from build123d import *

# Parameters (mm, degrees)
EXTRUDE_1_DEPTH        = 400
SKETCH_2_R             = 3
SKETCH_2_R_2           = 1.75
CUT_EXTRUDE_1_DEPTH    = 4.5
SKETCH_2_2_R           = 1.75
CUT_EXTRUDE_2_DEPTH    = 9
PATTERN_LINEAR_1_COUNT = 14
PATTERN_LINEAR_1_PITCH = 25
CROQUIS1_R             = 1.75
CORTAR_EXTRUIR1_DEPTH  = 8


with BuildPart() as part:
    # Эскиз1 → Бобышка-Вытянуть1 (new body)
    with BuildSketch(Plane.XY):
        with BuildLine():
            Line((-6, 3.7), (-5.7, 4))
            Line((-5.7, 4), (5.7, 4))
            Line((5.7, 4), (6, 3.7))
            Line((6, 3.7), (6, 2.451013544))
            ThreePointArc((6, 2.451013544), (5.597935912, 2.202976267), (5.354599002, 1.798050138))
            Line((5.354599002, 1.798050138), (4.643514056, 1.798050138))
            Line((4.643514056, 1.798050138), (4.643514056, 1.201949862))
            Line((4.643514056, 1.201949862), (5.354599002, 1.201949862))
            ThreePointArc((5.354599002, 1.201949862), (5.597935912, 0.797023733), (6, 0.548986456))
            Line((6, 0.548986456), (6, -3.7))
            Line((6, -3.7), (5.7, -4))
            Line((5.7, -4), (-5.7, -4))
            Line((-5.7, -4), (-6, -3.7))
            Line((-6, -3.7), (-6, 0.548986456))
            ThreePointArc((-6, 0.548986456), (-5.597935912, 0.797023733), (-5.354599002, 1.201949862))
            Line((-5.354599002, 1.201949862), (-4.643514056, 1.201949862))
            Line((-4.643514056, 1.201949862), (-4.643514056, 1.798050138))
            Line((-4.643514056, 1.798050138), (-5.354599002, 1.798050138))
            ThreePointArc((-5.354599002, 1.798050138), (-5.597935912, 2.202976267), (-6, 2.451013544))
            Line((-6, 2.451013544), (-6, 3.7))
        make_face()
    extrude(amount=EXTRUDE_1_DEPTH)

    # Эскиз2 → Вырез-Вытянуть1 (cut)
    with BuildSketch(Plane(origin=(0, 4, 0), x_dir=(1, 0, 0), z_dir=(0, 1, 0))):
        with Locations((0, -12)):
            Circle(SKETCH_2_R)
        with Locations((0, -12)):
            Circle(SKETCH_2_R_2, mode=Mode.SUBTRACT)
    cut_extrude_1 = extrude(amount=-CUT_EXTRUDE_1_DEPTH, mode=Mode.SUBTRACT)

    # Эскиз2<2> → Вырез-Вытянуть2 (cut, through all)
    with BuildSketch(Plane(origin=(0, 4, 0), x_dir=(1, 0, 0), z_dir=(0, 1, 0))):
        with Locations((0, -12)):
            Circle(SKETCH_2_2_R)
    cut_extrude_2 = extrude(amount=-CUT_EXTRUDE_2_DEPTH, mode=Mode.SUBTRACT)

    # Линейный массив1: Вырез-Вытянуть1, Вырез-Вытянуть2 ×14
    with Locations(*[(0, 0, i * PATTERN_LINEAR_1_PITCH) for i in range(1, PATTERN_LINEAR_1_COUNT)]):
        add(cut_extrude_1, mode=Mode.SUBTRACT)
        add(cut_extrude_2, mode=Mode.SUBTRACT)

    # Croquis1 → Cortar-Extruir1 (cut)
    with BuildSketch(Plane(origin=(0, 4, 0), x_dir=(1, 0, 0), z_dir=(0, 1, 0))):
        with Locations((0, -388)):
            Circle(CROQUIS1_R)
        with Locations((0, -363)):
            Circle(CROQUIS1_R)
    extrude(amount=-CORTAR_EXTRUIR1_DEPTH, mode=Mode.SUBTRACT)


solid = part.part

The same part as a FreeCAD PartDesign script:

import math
import FreeCAD as App
import Part
import Sketcher
from FreeCAD import Vector
Q = App.Units.Quantity

doc = App.newDocument("Part")
body = doc.addObject("PartDesign::Body", "Body")

# Sketch on XY plane
sketch1 = doc.addObject("Sketcher::SketchObject", "Sketch")
body.addObject(sketch1)
sketch1.AttachmentSupport = (doc.XY_Plane, [""])
sketch1.MapMode = "FlatFace"
sketch1.addGeometry(Part.LineSegment(Vector(-5.7, 4, 0), Vector(-6, 3.7, 0)), False)
sketch1.addGeometry(Part.LineSegment(Vector(-6, 3.7, 0), Vector(-6, 2.45, 0)), False)
sketch1.addGeometry(Part.ArcOfCircle(Part.Circle(Vector(-6.31, 1.5, 0), Vector(0, 0, 1), 1), math.radians(17), math.radians(72)), False)
sketch1.addGeometry(Part.LineSegment(Vector(-5.35, 1.8, 0), Vector(-4.64, 1.8, 0)), False)
sketch1.addGeometry(Part.LineSegment(Vector(-4.64, 1.8, 0), Vector(-4.64, 1.2, 0)), False)
sketch1.addGeometry(Part.LineSegment(Vector(-4.64, 1.2, 0), Vector(-5.35, 1.2, 0)), False)
sketch1.addGeometry(Part.ArcOfCircle(Part.Circle(Vector(-6.31, 1.5, 0), Vector(0, 0, 1), 1), math.radians(-72), math.radians(-17)), False)
sketch1.addGeometry(Part.LineSegment(Vector(-6, 0.55, 0), Vector(-6, -3.7, 0)), False)
sketch1.addGeometry(Part.LineSegment(Vector(-6, -3.7, 0), Vector(-5.7, -4, 0)), False)
sketch1.addGeometry(Part.LineSegment(Vector(-5.7, -4, 0), Vector(5.7, -4, 0)), False)
sketch1.addGeometry(Part.LineSegment(Vector(5.7, -4, 0), Vector(6, -3.7, 0)), False)
sketch1.addGeometry(Part.LineSegment(Vector(6, -3.7, 0), Vector(6, 0.55, 0)), False)
sketch1.addGeometry(Part.ArcOfCircle(Part.Circle(Vector(6.31, 1.5, 0), Vector(0, 0, 1), 1), math.radians(-163), math.radians(-108)), False)
sketch1.addGeometry(Part.LineSegment(Vector(5.35, 1.2, 0), Vector(4.64, 1.2, 0)), False)
sketch1.addGeometry(Part.LineSegment(Vector(4.64, 1.2, 0), Vector(4.64, 1.8, 0)), False)
sketch1.addGeometry(Part.LineSegment(Vector(4.64, 1.8, 0), Vector(5.35, 1.8, 0)), False)
sketch1.addGeometry(Part.ArcOfCircle(Part.Circle(Vector(6.31, 1.5, 0), Vector(0, 0, 1), 1), math.radians(108), math.radians(163)), False)
sketch1.addGeometry(Part.LineSegment(Vector(6, 2.45, 0), Vector(6, 3.7, 0)), False)
sketch1.addGeometry(Part.LineSegment(Vector(6, 3.7, 0), Vector(5.7, 4, 0)), False)
sketch1.addGeometry(Part.LineSegment(Vector(5.7, 4, 0), Vector(-5.7, 4, 0)), False)
sketch1.addConstraint(Sketcher.Constraint("Coincident", 0, 2, 1, 1))
sketch1.addConstraint(Sketcher.Constraint("Coincident", 1, 2, 2, 2))
sketch1.addConstraint(Sketcher.Constraint("Coincident", 2, 1, 3, 1))
sketch1.addConstraint(Sketcher.Constraint("Coincident", 3, 2, 4, 1))
sketch1.addConstraint(Sketcher.Constraint("Coincident", 4, 2, 5, 1))
sketch1.addConstraint(Sketcher.Constraint("Coincident", 5, 2, 6, 2))
sketch1.addConstraint(Sketcher.Constraint("Coincident", 6, 1, 7, 1))
sketch1.addConstraint(Sketcher.Constraint("Coincident", 7, 2, 8, 1))
sketch1.addConstraint(Sketcher.Constraint("Coincident", 8, 2, 9, 1))
sketch1.addConstraint(Sketcher.Constraint("Coincident", 9, 2, 10, 1))
sketch1.addConstraint(Sketcher.Constraint("Coincident", 10, 2, 11, 1))
sketch1.addConstraint(Sketcher.Constraint("Coincident", 11, 2, 12, 2))
sketch1.addConstraint(Sketcher.Constraint("Coincident", 12, 1, 13, 1))
sketch1.addConstraint(Sketcher.Constraint("Coincident", 13, 2, 14, 1))
sketch1.addConstraint(Sketcher.Constraint("Coincident", 14, 2, 15, 1))
sketch1.addConstraint(Sketcher.Constraint("Coincident", 15, 2, 16, 2))
sketch1.addConstraint(Sketcher.Constraint("Coincident", 16, 1, 17, 1))
sketch1.addConstraint(Sketcher.Constraint("Coincident", 17, 2, 18, 1))
sketch1.addConstraint(Sketcher.Constraint("Coincident", 18, 2, 19, 1))
sketch1.addConstraint(Sketcher.Constraint("Coincident", 19, 2, 0, 1))
sketch1.addConstraint(Sketcher.Constraint("Vertical", 1))
sketch1.addConstraint(Sketcher.Constraint("Horizontal", 3))
sketch1.addConstraint(Sketcher.Constraint("Vertical", 4))
sketch1.addConstraint(Sketcher.Constraint("Horizontal", 5))
sketch1.addConstraint(Sketcher.Constraint("Vertical", 7))
sketch1.addConstraint(Sketcher.Constraint("Horizontal", 9))
sketch1.addConstraint(Sketcher.Constraint("Vertical", 11))
sketch1.addConstraint(Sketcher.Constraint("Horizontal", 13))
sketch1.addConstraint(Sketcher.Constraint("Vertical", 14))
sketch1.addConstraint(Sketcher.Constraint("Horizontal", 15))
sketch1.addConstraint(Sketcher.Constraint("Vertical", 17))
sketch1.addConstraint(Sketcher.Constraint("Horizontal", 19))
sketch1.addConstraint(Sketcher.Constraint("Coincident", 6, 3, 2, 3))
sketch1.addConstraint(Sketcher.Constraint("Coincident", 16, 3, 12, 3))
sketch1.addConstraint(Sketcher.Constraint("Equal", 2, 6))
sketch1.addConstraint(Sketcher.Constraint("Equal", 6, 12))
sketch1.addConstraint(Sketcher.Constraint("Equal", 12, 16))
sketch1.addConstraint(Sketcher.Constraint("Symmetric", 0, 2, 10, 2, -1, 1))
sketch1.addConstraint(Sketcher.Constraint("Symmetric", 7, 2, 17, 2, -1, 1))
sketch1.addConstraint(Sketcher.Constraint("Symmetric", 8, 2, 18, 2, -1, 1))
sketch1.addConstraint(Sketcher.Constraint("Symmetric", 2, 3, 12, 3, -2))
sketch1.addConstraint(Sketcher.Constraint("Symmetric", 7, 2, 10, 2, -2))
sketch1.addConstraint(Sketcher.Constraint("Symmetric", 4, 2, 13, 2, -2))
sketch1.addConstraint(Sketcher.Constraint("Perpendicular", 0, 8))
sketch1.addConstraint(Sketcher.Constraint("Perpendicular", 8, 10))
sketch1.addConstraint(Sketcher.Constraint("Horizontal", 3, 2, 14, 2))
sketch1.addConstraint(Sketcher.Constraint("Vertical", 2, 1, 5, 2))
sketch1.addConstraint(Sketcher.Constraint("Vertical", 9, 2, 18, 2))
sketch1.addConstraint(Sketcher.Constraint("Radius", 2, Q("1 mm")))
sketch1.addConstraint(Sketcher.Constraint("DistanceX", 9, 1, 9, 2, Q("11.4 mm")))
sketch1.addConstraint(Sketcher.Constraint("DistanceX", 0, 2, -1, 1, Q("6 mm")))
sketch1.addConstraint(Sketcher.Constraint("DistanceY", 8, 2, -1, 1, Q("4 mm")))
sketch1.addConstraint(Sketcher.Constraint("DistanceY", -1, 1, 2, 3, Q("1.5 mm")))
sketch1.addConstraint(Sketcher.Constraint("DistanceY", 4, 2, 4, 1, Q("0.5961 mm")))
sketch1.addConstraint(Sketcher.Constraint("DistanceX", 2, 1, -1, 1, Q("5.354599 mm")))
sketch1.addConstraint(Sketcher.Constraint("DistanceX", 3, 1, 3, 2, Q("0.711085 mm")))
pad1 = doc.addObject("PartDesign::Pad", "Pad")
body.addObject(pad1)
pad1.Profile = sketch1
pad1.Length = 400

# Sketch on XZ plane
sketch2 = doc.addObject("Sketcher::SketchObject", "Sketch001")
body.addObject(sketch2)
sketch2.AttachmentSupport = (doc.XZ_Plane, [""])
sketch2.MapMode = "FlatFace"
sketch2.AttachmentOffset = App.Placement(Vector(0, 0, -4), App.Rotation())
sketch2.addGeometry(Part.Circle(Vector(0, 12, 0), Vector(0, 0, 1), 3), False)
sketch2.addGeometry(Part.Circle(Vector(0, 12, 0), Vector(0, 0, 1), 1.8), False)
sketch2.addConstraint(Sketcher.Constraint("Coincident", 1, 3, 0, 3))
sketch2.addConstraint(Sketcher.Constraint("PointOnObject", 0, 3, -2))
sketch2.addConstraint(Sketcher.Constraint("Diameter", 0, Q("6 mm")))
sketch2.addConstraint(Sketcher.Constraint("Diameter", 1, Q("3.5 mm")))
sketch2.addConstraint(Sketcher.Constraint("DistanceY", -1, 1, 0, 3, Q("12 mm")))
pocket1 = doc.addObject("PartDesign::Pocket", "Pocket")
body.addObject(pocket1)
pocket1.Profile = sketch2
pocket1.Length = 4.5
pocket1.Reversed = True

# Sketch on XZ plane
sketch3 = doc.addObject("Sketcher::SketchObject", "Sketch002")
body.addObject(sketch3)
sketch3.AttachmentSupport = (doc.XZ_Plane, [""])
sketch3.MapMode = "FlatFace"
sketch3.AttachmentOffset = App.Placement(Vector(0, 0, -4), App.Rotation())
sketch3.addGeometry(Part.Circle(Vector(0, 12, 0), Vector(0, 0, 1), 1.8), False)
sketch3.addConstraint(Sketcher.Constraint("PointOnObject", 0, 3, -2))
sketch3.addConstraint(Sketcher.Constraint("Diameter", 0, Q("3.5 mm")))
sketch3.addConstraint(Sketcher.Constraint("DistanceY", -1, 1, 0, 3, Q("12 mm")))
pocket2 = doc.addObject("PartDesign::Pocket", "Pocket001")
body.addObject(pocket2)
pocket2.Profile = sketch3
pocket2.Type = "ThroughAll"
pocket2.Reversed = True
doc.recompute()

linearpattern = doc.addObject("PartDesign::LinearPattern", "LinearPattern")
body.addObject(linearpattern)
linearpattern.Originals = [pocket1, pocket2]
linearpattern.Direction = (doc.Z_Axis, [""])
linearpattern.Mode = "offset"
linearpattern.Offset = 25
linearpattern.Occurrences = 14
body.Tip = linearpattern

# Sketch on XZ plane
sketch4 = doc.addObject("Sketcher::SketchObject", "Sketch003")
body.addObject(sketch4)
sketch4.AttachmentSupport = (doc.XZ_Plane, [""])
sketch4.MapMode = "FlatFace"
sketch4.AttachmentOffset = App.Placement(Vector(0, 0, -4), App.Rotation())
sketch4.addGeometry(Part.Circle(Vector(0, 388, 0), Vector(0, 0, 1), 1.8), False)
sketch4.addGeometry(Part.Circle(Vector(0, 363, 0), Vector(0, 0, 1), 1.8), False)
sketch4.addConstraint(Sketcher.Constraint("Equal", 0, 1))
sketch4.addConstraint(Sketcher.Constraint("PointOnObject", 0, 3, -2))
sketch4.addConstraint(Sketcher.Constraint("PointOnObject", 1, 3, -2))
sketch4.addConstraint(Sketcher.Constraint("Diameter", 0, Q("3.5 mm")))
sketch4.addConstraint(Sketcher.Constraint("DistanceY", -1, 1, 0, 3, Q("388 mm")))
sketch4.addConstraint(Sketcher.Constraint("DistanceY", -1, 1, 1, 3, Q("363 mm")))
pocket3 = doc.addObject("PartDesign::Pocket", "Pocket002")
body.addObject(pocket3)
pocket3.Profile = sketch4
pocket3.Length = 8
pocket3.Reversed = True

doc.recompute()
